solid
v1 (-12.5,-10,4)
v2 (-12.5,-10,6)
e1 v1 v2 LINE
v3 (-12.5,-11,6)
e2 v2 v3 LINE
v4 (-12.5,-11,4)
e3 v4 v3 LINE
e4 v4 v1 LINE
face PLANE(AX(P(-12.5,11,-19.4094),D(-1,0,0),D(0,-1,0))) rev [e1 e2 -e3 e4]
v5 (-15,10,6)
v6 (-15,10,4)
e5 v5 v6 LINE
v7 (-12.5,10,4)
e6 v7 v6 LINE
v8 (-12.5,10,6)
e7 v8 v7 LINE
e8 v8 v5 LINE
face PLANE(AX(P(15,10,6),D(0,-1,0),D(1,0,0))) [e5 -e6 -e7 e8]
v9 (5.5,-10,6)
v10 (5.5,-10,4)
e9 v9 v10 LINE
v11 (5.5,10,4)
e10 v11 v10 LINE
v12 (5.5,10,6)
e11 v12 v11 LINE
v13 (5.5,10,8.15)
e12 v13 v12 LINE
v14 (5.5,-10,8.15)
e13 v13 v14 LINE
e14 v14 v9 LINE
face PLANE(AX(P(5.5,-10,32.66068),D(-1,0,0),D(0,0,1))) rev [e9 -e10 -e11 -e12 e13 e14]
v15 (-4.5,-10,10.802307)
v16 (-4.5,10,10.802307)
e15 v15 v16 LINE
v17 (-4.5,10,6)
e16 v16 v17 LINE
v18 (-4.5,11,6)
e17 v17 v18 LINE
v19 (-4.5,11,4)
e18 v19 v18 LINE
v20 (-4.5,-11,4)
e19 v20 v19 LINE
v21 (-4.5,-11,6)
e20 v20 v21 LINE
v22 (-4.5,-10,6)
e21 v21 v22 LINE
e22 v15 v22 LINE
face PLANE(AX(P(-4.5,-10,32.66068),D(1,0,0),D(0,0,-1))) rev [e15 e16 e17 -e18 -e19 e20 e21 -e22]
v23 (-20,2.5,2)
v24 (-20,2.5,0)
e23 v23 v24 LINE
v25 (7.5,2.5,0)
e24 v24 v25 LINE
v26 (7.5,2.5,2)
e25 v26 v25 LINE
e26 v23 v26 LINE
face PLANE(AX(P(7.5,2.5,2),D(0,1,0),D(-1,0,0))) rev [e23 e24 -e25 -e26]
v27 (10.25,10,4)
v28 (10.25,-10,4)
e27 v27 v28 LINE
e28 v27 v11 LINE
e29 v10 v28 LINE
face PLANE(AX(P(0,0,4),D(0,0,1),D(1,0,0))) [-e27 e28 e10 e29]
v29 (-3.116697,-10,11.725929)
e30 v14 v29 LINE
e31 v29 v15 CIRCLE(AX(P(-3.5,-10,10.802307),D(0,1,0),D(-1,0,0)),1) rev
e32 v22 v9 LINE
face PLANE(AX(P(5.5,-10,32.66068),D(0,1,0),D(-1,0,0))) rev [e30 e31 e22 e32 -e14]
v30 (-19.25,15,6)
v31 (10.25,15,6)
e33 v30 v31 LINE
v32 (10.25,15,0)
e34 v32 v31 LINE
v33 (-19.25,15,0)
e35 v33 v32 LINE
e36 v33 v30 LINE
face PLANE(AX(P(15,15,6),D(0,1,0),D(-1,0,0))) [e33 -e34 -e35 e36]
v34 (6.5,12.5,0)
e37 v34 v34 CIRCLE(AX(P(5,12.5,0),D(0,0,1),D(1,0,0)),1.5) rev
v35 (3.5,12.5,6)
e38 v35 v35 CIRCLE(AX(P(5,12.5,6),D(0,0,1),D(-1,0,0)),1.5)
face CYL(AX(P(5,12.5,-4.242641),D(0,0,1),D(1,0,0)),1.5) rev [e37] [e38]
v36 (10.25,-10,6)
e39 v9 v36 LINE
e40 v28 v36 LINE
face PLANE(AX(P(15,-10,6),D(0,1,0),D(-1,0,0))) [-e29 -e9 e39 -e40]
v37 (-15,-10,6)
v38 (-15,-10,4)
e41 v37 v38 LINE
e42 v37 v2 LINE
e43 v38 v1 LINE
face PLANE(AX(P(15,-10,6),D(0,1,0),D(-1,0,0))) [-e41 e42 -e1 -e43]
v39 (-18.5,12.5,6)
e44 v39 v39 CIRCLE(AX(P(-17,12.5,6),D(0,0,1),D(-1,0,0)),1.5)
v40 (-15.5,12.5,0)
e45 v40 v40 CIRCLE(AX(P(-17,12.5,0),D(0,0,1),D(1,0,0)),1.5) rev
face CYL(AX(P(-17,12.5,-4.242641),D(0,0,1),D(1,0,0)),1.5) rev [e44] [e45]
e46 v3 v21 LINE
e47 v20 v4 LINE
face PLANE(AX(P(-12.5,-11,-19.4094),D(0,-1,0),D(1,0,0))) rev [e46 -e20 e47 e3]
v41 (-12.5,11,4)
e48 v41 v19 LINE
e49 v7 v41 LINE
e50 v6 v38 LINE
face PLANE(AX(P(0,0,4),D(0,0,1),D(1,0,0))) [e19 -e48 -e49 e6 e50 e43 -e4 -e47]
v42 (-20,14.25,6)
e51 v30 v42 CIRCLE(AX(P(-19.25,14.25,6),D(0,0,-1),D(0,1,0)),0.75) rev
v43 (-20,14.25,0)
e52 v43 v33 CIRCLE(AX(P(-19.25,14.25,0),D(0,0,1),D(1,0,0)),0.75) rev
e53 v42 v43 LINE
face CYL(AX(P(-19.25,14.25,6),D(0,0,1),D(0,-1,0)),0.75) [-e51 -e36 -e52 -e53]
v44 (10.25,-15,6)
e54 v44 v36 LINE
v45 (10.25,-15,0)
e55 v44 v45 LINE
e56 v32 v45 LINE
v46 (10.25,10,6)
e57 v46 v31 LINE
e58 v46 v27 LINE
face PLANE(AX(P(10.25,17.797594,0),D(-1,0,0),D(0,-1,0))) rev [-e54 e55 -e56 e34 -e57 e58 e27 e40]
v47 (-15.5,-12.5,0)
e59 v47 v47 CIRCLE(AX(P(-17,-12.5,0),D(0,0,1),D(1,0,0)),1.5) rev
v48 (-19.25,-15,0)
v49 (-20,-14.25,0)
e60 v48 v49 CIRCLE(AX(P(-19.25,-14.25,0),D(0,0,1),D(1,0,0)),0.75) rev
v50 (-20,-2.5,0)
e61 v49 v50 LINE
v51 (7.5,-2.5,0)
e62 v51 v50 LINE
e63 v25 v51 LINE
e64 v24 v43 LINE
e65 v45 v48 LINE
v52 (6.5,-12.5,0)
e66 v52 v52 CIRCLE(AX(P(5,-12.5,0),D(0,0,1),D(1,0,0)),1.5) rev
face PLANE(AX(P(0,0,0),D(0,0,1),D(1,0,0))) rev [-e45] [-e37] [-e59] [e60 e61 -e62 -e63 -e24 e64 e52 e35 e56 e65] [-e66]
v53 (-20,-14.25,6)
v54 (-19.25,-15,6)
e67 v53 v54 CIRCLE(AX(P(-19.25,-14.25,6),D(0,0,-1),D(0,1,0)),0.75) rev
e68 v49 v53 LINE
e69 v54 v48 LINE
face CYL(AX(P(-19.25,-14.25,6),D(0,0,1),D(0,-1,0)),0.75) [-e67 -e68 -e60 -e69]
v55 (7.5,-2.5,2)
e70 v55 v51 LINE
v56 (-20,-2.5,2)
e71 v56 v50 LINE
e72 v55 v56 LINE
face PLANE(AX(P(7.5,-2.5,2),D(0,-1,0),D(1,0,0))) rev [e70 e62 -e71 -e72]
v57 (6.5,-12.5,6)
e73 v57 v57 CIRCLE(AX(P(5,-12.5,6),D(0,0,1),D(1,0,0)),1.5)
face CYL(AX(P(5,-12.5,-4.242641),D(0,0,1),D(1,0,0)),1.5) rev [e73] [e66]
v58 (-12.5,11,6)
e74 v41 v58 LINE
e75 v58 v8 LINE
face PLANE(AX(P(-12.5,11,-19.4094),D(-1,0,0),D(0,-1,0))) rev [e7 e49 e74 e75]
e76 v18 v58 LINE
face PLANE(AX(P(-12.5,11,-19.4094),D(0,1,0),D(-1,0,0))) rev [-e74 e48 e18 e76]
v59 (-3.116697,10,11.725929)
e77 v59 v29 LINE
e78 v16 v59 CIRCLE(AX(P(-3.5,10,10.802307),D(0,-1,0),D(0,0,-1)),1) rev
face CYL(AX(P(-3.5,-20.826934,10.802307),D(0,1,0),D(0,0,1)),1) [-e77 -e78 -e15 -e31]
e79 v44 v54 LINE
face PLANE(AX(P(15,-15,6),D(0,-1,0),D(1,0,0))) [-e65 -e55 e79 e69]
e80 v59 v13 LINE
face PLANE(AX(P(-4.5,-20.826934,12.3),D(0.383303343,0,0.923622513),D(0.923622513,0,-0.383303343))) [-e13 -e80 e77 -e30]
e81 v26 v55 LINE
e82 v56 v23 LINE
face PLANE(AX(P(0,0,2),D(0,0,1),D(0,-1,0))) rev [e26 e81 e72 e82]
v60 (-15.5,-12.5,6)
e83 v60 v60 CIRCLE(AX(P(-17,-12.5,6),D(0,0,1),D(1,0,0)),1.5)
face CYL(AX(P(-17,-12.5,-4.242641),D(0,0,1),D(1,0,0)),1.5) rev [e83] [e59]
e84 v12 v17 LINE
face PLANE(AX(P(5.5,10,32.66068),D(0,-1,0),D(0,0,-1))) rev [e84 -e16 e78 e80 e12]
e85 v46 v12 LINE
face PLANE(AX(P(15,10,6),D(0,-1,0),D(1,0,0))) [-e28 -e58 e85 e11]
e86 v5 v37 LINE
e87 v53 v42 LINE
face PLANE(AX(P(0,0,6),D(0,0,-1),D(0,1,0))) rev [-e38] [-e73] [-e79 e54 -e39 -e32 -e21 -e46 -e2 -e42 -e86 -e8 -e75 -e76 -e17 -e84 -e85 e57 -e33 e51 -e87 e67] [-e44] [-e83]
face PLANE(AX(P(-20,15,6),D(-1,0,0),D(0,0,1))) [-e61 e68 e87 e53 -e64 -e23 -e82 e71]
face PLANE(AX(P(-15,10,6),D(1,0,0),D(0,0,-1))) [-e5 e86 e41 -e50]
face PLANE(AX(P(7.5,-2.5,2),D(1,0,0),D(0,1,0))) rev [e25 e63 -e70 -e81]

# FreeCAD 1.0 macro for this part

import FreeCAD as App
import Part
import Sketcher

V = App.Vector
Q = App.Units.Quantity


def edges_at(feature, points):
    """Names of the edges that pass closest to the given points."""
    edges = feature.Shape.Edges
    near = lambda p: min(range(len(edges)), key=lambda i: edges[i].distToShape(Part.Vertex(*p))[0])
    return sorted({f"Edge{near(p) + 1}" for p in points})

doc = App.newDocument("Part")
body = doc.addObject("PartDesign::Body", "Body")

sketch1 = body.newObject("Sketcher::SketchObject", "Sketch")
sketch1.AttachmentSupport = (doc.getObject("XY_Plane"), [""])
sketch1.MapMode = "FlatFace"
sketch1.addGeometry([
    Part.LineSegment(V(-15, 10, 0), V(-15, -10, 0)),
    Part.LineSegment(V(-15, -10, 0), V(15, -10, 0)),
    Part.LineSegment(V(15, -10, 0), V(15, 10, 0)),
    Part.LineSegment(V(15, 10, 0), V(-15, 10, 0)),
], False)
sketch1.addConstraint([
    Sketcher.Constraint("Coincident", 0, 2, 1, 1),
    Sketcher.Constraint("Coincident", 1, 2, 2, 1),
    Sketcher.Constraint("Coincident", 2, 2, 3, 1),
    Sketcher.Constraint("Coincident", 3, 2, 0, 1),
    Sketcher.Constraint("Vertical", 0),
    Sketcher.Constraint("Horizontal", 1),
    Sketcher.Constraint("Vertical", 2),
    Sketcher.Constraint("Horizontal", 3),
    Sketcher.Constraint("Symmetric", 0, 2, 2, 2, -1, 1),
    Sketcher.Constraint("DistanceX", 1, 1, 1, 2, Q("30 mm")),
    Sketcher.Constraint("DistanceY", 0, 2, 0, 1, Q("20 mm")),
])
pad1 = body.newObject("PartDesign::Pad", "Pad")
pad1.Profile = sketch1
pad1.Length = 1

sketch2 = body.newObject("Sketcher::SketchObject", "Sketch001")
sketch2.AttachmentSupport = (doc.getObject("XY_Plane"), [""])
sketch2.MapMode = "FlatFace"
sketch2.addGeometry([
    Part.LineSegment(V(-15, -10, 0), V(15, -10, 0)),
    Part.LineSegment(V(15, -10, 0), V(15, -15, 0)),
    Part.LineSegment(V(15, -15, 0), V(-20, -15, 0)),
    Part.LineSegment(V(-20, -15, 0), V(-20, 15, 0)),
    Part.LineSegment(V(-20, 15, 0), V(15, 15, 0)),
    Part.LineSegment(V(15, 15, 0), V(15, 10, 0)),
    Part.LineSegment(V(15, 10, 0), V(-15, 10, 0)),
    Part.LineSegment(V(-15, 10, 0), V(-15, -10, 0)),
], False)
sketch2.addConstraint([
    Sketcher.Constraint("Coincident", 0, 2, 1, 1),
    Sketcher.Constraint("Coincident", 1, 2, 2, 1),
    Sketcher.Constraint("Coincident", 2, 2, 3, 1),
    Sketcher.Constraint("Coincident", 3, 2, 4, 1),
    Sketcher.Constraint("Coincident", 4, 2, 5, 1),
    Sketcher.Constraint("Coincident", 5, 2, 6, 1),
    Sketcher.Constraint("Coincident", 6, 2, 7, 1),
    Sketcher.Constraint("Coincident", 7, 2, 0, 1),
    Sketcher.Constraint("Horizontal", 0),
    Sketcher.Constraint("Vertical", 1),
    Sketcher.Constraint("Horizontal", 2),
    Sketcher.Constraint("Vertical", 3),
    Sketcher.Constraint("Horizontal", 4),
    Sketcher.Constraint("Vertical", 5),
    Sketcher.Constraint("Horizontal", 6),
    Sketcher.Constraint("Vertical", 7),
    Sketcher.Constraint("Symmetric", 0, 2, 6, 2, -1, 1),
    Sketcher.Constraint("Symmetric", 1, 2, 4, 2, -1),
    Sketcher.Constraint("Equal", 6, 3),
    Sketcher.Constraint("DistanceX", 0, 1, 0, 2, Q("30 mm")),
    Sketcher.Constraint("DistanceX", 2, 2, 2, 1, Q("35 mm")),
    Sketcher.Constraint("DistanceY", 1, 2, 1, 1, Q("5 mm")),
])
pad2 = body.newObject("PartDesign::Pad", "Pad001")
pad2.Profile = sketch2
pad2.Length = 6

sketch3 = body.newObject("Sketcher::SketchObject", "Sketch002")
sketch3.AttachmentSupport = (doc.getObject("XY_Plane"), [""])
sketch3.MapMode = "FlatFace"
sketch3.AttachmentOffset = App.Placement(V(0, 0, 1), App.Rotation())
sketch3.addGeometry([
    Part.LineSegment(V(-4, 10, 0), V(-4, -10, 0)),
    Part.LineSegment(V(-4, -10, 0), V(6, -10, 0)),
    Part.LineSegment(V(6, -10, 0), V(6, 10, 0)),
    Part.LineSegment(V(6, 10, 0), V(-4, 10, 0)),
], False)
sketch3.addConstraint([
    Sketcher.Constraint("Coincident", 0, 2, 1, 1),
    Sketcher.Constraint("Coincident", 1, 2, 2, 1),
    Sketcher.Constraint("Coincident", 2, 2, 3, 1),
    Sketcher.Constraint("Coincident", 3, 2, 0, 1),
    Sketcher.Constraint("Vertical", 0),
    Sketcher.Constraint("Horizontal", 1),
    Sketcher.Constraint("Vertical", 2),
    Sketcher.Constraint("Horizontal", 3),
    Sketcher.Constraint("DistanceX", 1, 1, 1, 2, Q("10 mm")),
    Sketcher.Constraint("DistanceY", 0, 2, 0, 1, Q("20 mm")),
    Sketcher.Constraint("DistanceY", 0, 2, -1, 1, Q("10 mm")),
    Sketcher.Constraint("DistanceX", 0, 2, -1, 1, Q("4.5 mm")),
])
pad3 = body.newObject("PartDesign::Pad", "Pad002")
pad3.Profile = sketch3
pad3.Length = 7.15

sketch4 = body.newObject("Sketcher::SketchObject", "Sketch003")
sketch4.AttachmentSupport = (doc.getObject("XY_Plane"), [""])
sketch4.MapMode = "FlatFace"
sketch4.AttachmentOffset = App.Placement(V(0, 0, 1), App.Rotation())
sketch4.addGeometry([
    Part.LineSegment(V(-15, 10, 0), V(-15, -10, 0)),
    Part.LineSegment(V(-15, -10, 0), V(-4, -10, 0)),
    Part.LineSegment(V(-4, -10, 0), V(-4, 10, 0)),
    Part.LineSegment(V(-4, 10, 0), V(-15, 10, 0)),
    Part.LineSegment(V(6, 10, 0), V(6, -10, 0)),
    Part.LineSegment(V(6, -10, 0), V(15, -10, 0)),
    Part.LineSegment(V(15, -10, 0), V(15, 10, 0)),
    Part.LineSegment(V(15, 10, 0), V(6, 10, 0)),
], False)
sketch4.addConstraint([
    Sketcher.Constraint("Coincident", 0, 2, 1, 1),
    Sketcher.Constraint("Coincident", 1, 2, 2, 1),
    Sketcher.Constraint("Coincident", 2, 2, 3, 1),
    Sketcher.Constraint("Coincident", 3, 2, 0, 1),
    Sketcher.Constraint("Coincident", 4, 2, 5, 1),
    Sketcher.Constraint("Coincident", 5, 2, 6, 1),
    Sketcher.Constraint("Coincident", 6, 2, 7, 1),
    Sketcher.Constraint("Coincident", 7, 2, 4, 1),
    Sketcher.Constraint("Vertical", 0),
    Sketcher.Constraint("Horizontal", 1),
    Sketcher.Constraint("Vertical", 2),
    Sketcher.Constraint("Horizontal", 3),
    Sketcher.Constraint("Vertical", 4),
    Sketcher.Constraint("Horizontal", 5),
    Sketcher.Constraint("Vertical", 6),
    Sketcher.Constraint("Horizontal", 7),
    Sketcher.Constraint("Symmetric", 3, 2, 5, 2, -1, 1),
    Sketcher.Constraint("Horizontal", 1, 2, 4, 2),
    Sketcher.Constraint("Horizontal", 3, 2, 6, 2),
    Sketcher.Constraint("DistanceY", 0, 2, 0, 1, Q("20 mm")),
    Sketcher.Constraint("DistanceX", 1, 1, 1, 2, Q("10.5 mm")),
    Sketcher.Constraint("DistanceX", 5, 1, 5, 2, Q("9.5 mm")),
    Sketcher.Constraint("DistanceX", 0, 2, -1, 1, Q("15 mm")),
])
pad4 = body.newObject("PartDesign::Pad", "Pad003")
pad4.Profile = sketch4
pad4.Length = 3

sketch5 = body.newObject("Sketcher::SketchObject", "Sketch004")
sketch5.AttachmentSupport = (doc.getObject("XZ_Plane"), [""])
sketch5.MapMode = "FlatFace"
sketch5.AttachmentOffset = App.Placement(V(0, 0, -10), App.Rotation())
sketch5.addGeometry([
    Part.LineSegment(V(-4.5, 8.2, 0), V(-4.5, 12.3, 0)),
    Part.LineSegment(V(-4.5, 12.3, 0), V(5.5, 8.2, 0)),
    Part.LineSegment(V(5.5, 8.2, 0), V(-4.5, 8.2, 0)),
], False)
sketch5.addConstraint([
    Sketcher.Constraint("Coincident", 0, 2, 1, 1),
    Sketcher.Constraint("Coincident", 1, 2, 2, 1),
    Sketcher.Constraint("Coincident", 2, 2, 0, 1),
    Sketcher.Constraint("Vertical", 0),
    Sketcher.Constraint("Horizontal", 2),
    Sketcher.Constraint("DistanceX", 2, 2, 2, 1, Q("10 mm")),
    Sketcher.Constraint("DistanceY", 0, 1, 0, 2, Q("4.15 mm")),
    Sketcher.Constraint("DistanceX", 0, 2, -1, 1, Q("4.5 mm")),
    Sketcher.Constraint("DistanceY", -1, 1, 0, 2, Q("12.3 mm")),
])
pad5 = body.newObject("PartDesign::Pad", "Pad004")
pad5.Profile = sketch5
pad5.Length = 20

sketch6 = body.newObject("Sketcher::SketchObject", "Sketch005")
sketch6.AttachmentSupport = (doc.getObject("XY_Plane"), [""])
sketch6.MapMode = "FlatFace"
sketch6.AttachmentOffset = App.Placement(V(0, 0, 6), App.Rotation())
sketch6.addGeometry([
    Part.Circle(V(-17, -12.5, 0), V(0, 0, 1), 1.5),
    Part.Circle(V(5, -12.5, 0), V(0, 0, 1), 1.5),
    Part.Circle(V(5, 12.5, 0), V(0, 0, 1), 1.5),
    Part.Circle(V(-17, 12.5, 0), V(0, 0, 1), 1.5),
], False)
sketch6.addConstraint([
    Sketcher.Constraint("Equal", 0, 1),
    Sketcher.Constraint("Equal", 1, 2),
    Sketcher.Constraint("Equal", 2, 3),
    Sketcher.Constraint("Symmetric", 1, 3, 2, 3, -1),
    Sketcher.Constraint("Symmetric", 0, 3, 3, 3, -1),
    Sketcher.Constraint("Horizontal", 0, 3, 1, 3),
    Sketcher.Constraint("Diameter", 0, Q("3 mm")),
    Sketcher.Constraint("DistanceX", 0, 3, -1, 1, Q("17 mm")),
    Sketcher.Constraint("DistanceX", -1, 1, 1, 3, Q("5 mm")),
    Sketcher.Constraint("DistanceY", 1, 3, 2, 3, Q("25 mm")),
])
pocket1 = body.newObject("PartDesign::Pocket", "Pocket")
pocket1.Profile = sketch6
pocket1.Length = 6
doc.recompute()

fillet = body.newObject("PartDesign::Fillet", "Fillet")
fillet.Base = (pocket1, edges_at(pocket1, [(-4.5, 0, 12.3)]))
fillet.Radius = 1
doc.recompute()

fillet2 = body.newObject("PartDesign::Fillet", "Fillet001")
fillet2.Base = (fillet, edges_at(fillet, [(15, -15, 3)]))
fillet2.Radius = 0.5
doc.recompute()

fillet3 = body.newObject("PartDesign::Fillet", "Fillet002")
fillet3.Base = (fillet2, edges_at(fillet2, [(15, 15, 3)]))
fillet3.Radius = 0.5
doc.recompute()

fillet4 = body.newObject("PartDesign::Fillet", "Fillet003")
fillet4.Base = (fillet3, edges_at(fillet3, [(-20, 15, 3)]))
fillet4.Radius = 0.75
doc.recompute()

fillet5 = body.newObject("PartDesign::Fillet", "Fillet004")
fillet5.Base = (fillet4, edges_at(fillet4, [(-20, -15, 3)]))
fillet5.Radius = 0.75

sketch7 = body.newObject("Sketcher::SketchObject", "Sketch006")
sketch7.AttachmentSupport = (doc.getObject("XY_Plane"), [""])
sketch7.MapMode = "FlatFace"
sketch7.AttachmentOffset = App.Placement(V(0, 0, 6), App.Rotation())
sketch7.addGeometry([
    Part.LineSegment(V(-12, 11, 0), V(-12, -11, 0)),
    Part.LineSegment(V(-12, -11, 0), V(-4, -11, 0)),
    Part.LineSegment(V(-4, -11, 0), V(-4, 11, 0)),
    Part.LineSegment(V(-4, 11, 0), V(-12, 11, 0)),
], False)
sketch7.addConstraint([
    Sketcher.Constraint("Coincident", 0, 2, 1, 1),
    Sketcher.Constraint("Coincident", 1, 2, 2, 1),
    Sketcher.Constraint("Coincident", 2, 2, 3, 1),
    Sketcher.Constraint("Coincident", 3, 2, 0, 1),
    Sketcher.Constraint("Vertical", 0),
    Sketcher.Constraint("Horizontal", 1),
    Sketcher.Constraint("Vertical", 2),
    Sketcher.Constraint("Horizontal", 3),
    Sketcher.Constraint("DistanceX", 1, 1, 1, 2, Q("8 mm")),
    Sketcher.Constraint("DistanceY", 0, 2, 0, 1, Q("22 mm")),
    Sketcher.Constraint("DistanceY", 0, 2, -1, 1, Q("11 mm")),
    Sketcher.Constraint("DistanceX", 0, 2, -1, 1, Q("12.5 mm")),
])
pocket2 = body.newObject("PartDesign::Pocket", "Pocket001")
pocket2.Profile = sketch7
pocket2.Length = 2

sketch8 = body.newObject("Sketcher::SketchObject", "Sketch007")
sketch8.AttachmentSupport = (doc.getObject("XY_Plane"), [""])
sketch8.MapMode = "FlatFace"
sketch8.addGeometry([
    Part.LineSegment(V(-20, -2, 0), V(-20, 2, 0)),
    Part.LineSegment(V(-20, 2, 0), V(8, 2, 0)),
    Part.LineSegment(V(8, 2, 0), V(8, -2, 0)),
    Part.LineSegment(V(8, -2, 0), V(-20, -2, 0)),
], False)
sketch8.addConstraint([
    Sketcher.Constraint("Coincident", 0, 2, 1, 1),
    Sketcher.Constraint("Coincident", 1, 2, 2, 1),
    Sketcher.Constraint("Coincident", 2, 2, 3, 1),
    Sketcher.Constraint("Coincident", 3, 2, 0, 1),
    Sketcher.Constraint("Vertical", 0),
    Sketcher.Constraint("Horizontal", 1),
    Sketcher.Constraint("Vertical", 2),
    Sketcher.Constraint("Horizontal", 3),
    Sketcher.Constraint("DistanceY", 0, 1, 0, 2, Q("5 mm")),
    Sketcher.Constraint("DistanceX", 1, 1, 1, 2, Q("27.5 mm")),
    Sketcher.Constraint("DistanceX", 0, 2, -1, 1, Q("20 mm")),
    Sketcher.Constraint("DistanceY", -1, 1, 0, 2, Q("2.5 mm")),
])
pocket3 = body.newObject("PartDesign::Pocket", "Pocket002")
pocket3.Profile = sketch8
pocket3.Length = 2
pocket3.Reversed = True

sketch9 = body.newObject("Sketcher::SketchObject", "Sketch008")
sketch9.AttachmentSupport = (doc.getObject("XY_Plane"), [""])
sketch9.MapMode = "FlatFace"
sketch9.AttachmentOffset = App.Placement(V(0, 0, 6), App.Rotation())
sketch9.addGeometry([
    Part.LineSegment(V(10, 18, 0), V(10, -23, 0)),
    Part.LineSegment(V(10, -23, 0), V(30, -23, 0)),
    Part.LineSegment(V(30, -23, 0), V(30, 18, 0)),
    Part.LineSegment(V(30, 18, 0), V(10, 18, 0)),
], False)
sketch9.addConstraint([
    Sketcher.Constraint("Coincident", 0, 2, 1, 1),
    Sketcher.Constraint("Coincident", 1, 2, 2, 1),
    Sketcher.Constraint("Coincident", 2, 2, 3, 1),
    Sketcher.Constraint("Coincident", 3, 2, 0, 1),
    Sketcher.Constraint("Vertical", 0),
    Sketcher.Constraint("Horizontal", 1),
    Sketcher.Constraint("Vertical", 2),
    Sketcher.Constraint("Horizontal", 3),
    Sketcher.Constraint("DistanceX", -1, 1, 0, 2, Q("10.25 mm")),
    Sketcher.Constraint("DistanceY", 0, 2, 0, 1, Q("41.088441 mm")),
    Sketcher.Constraint("DistanceX", 1, 1, 1, 2, Q("19.855196 mm")),
    Sketcher.Constraint("DistanceY", 0, 2, -1, 1, Q("23.290847 mm")),
])
pocket4 = body.newObject("PartDesign::Pocket", "Pocket003")
pocket4.Profile = sketch9
pocket4.Type = "ThroughAll"
pocket4.Midplane = True

doc.recompute()
